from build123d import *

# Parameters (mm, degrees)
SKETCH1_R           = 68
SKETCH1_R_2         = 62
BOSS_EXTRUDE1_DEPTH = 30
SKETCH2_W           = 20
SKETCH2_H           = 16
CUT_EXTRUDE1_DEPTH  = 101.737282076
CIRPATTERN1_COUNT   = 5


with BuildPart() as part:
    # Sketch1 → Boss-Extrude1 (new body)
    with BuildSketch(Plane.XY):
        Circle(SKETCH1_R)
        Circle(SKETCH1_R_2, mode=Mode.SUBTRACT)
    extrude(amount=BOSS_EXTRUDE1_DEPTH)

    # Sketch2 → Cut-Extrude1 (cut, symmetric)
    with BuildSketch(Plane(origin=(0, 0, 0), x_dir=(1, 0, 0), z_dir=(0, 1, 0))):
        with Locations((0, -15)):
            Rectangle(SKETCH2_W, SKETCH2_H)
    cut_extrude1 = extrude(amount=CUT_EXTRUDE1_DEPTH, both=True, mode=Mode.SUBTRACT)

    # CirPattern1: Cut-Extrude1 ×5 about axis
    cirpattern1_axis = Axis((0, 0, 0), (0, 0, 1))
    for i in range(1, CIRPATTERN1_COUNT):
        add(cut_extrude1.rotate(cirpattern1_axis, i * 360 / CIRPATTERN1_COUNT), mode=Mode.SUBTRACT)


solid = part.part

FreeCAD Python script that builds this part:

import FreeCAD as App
import Part
import Sketcher

V = App.Vector
Q = App.Units.Quantity

doc = App.newDocument("Part")
body = doc.addObject("PartDesign::Body", "Body")

sketch1 = body.newObject("Sketcher::SketchObject", "Sketch")
sketch1.AttachmentSupport = (doc.getObject("XY_Plane"), [""])
sketch1.MapMode = "FlatFace"
sketch1.addGeometry(Part.Circle(V(0, 0, 0), V(0, 0, 1), 68), False)
sketch1.addGeometry(Part.Circle(V(0, 0, 0), V(0, 0, 1), 62), False)
sketch1.addConstraint(Sketcher.Constraint("Coincident", 0, 3, -1, 1))
sketch1.addConstraint(Sketcher.Constraint("Coincident", 1, 3, -1, 1))
sketch1.addConstraint(Sketcher.Constraint("Diameter", 0, Q("136 mm")))
sketch1.addConstraint(Sketcher.Constraint("Diameter", 1, Q("124 mm")))
pad1 = body.newObject("PartDesign::Pad", "Pad")
pad1.Profile = sketch1
pad1.Length = 30

sketch2 = body.newObject("Sketcher::SketchObject", "Sketch001")
sketch2.AttachmentSupport = (doc.getObject("XZ_Plane"), [""])
sketch2.MapMode = "FlatFace"
sketch2.addGeometry(Part.LineSegment(V(-10, 7, 0), V(-10, 23, 0)), False)
sketch2.addGeometry(Part.LineSegment(V(-10, 23, 0), V(10, 23, 0)), False)
sketch2.addGeometry(Part.LineSegment(V(10, 23, 0), V(10, 7, 0)), False)
sketch2.addGeometry(Part.LineSegment(V(10, 7, 0), V(-10, 7, 0)), False)
sketch2.addConstraint(Sketcher.Constraint("Coincident", 0, 2, 1, 1))
sketch2.addConstraint(Sketcher.Constraint("Coincident", 1, 2, 2, 1))
sketch2.addConstraint(Sketcher.Constraint("Coincident", 2, 2, 3, 1))
sketch2.addConstraint(Sketcher.Constraint("Coincident", 3, 2, 0, 1))
sketch2.addConstraint(Sketcher.Constraint("Vertical", 0))
sketch2.addConstraint(Sketcher.Constraint("Horizontal", 1))
sketch2.addConstraint(Sketcher.Constraint("Vertical", 2))
sketch2.addConstraint(Sketcher.Constraint("Horizontal", 3))
sketch2.addConstraint(Sketcher.Constraint("DistanceX", 1, 1, 1, 2, Q("20 mm")))
sketch2.addConstraint(Sketcher.Constraint("DistanceY", 0, 1, 0, 2, Q("16 mm")))
sketch2.addConstraint(Sketcher.Constraint("DistanceX", 0, 2, -1, 1, Q("10 mm")))
sketch2.addConstraint(Sketcher.Constraint("DistanceY", -1, 1, 0, 2, Q("23 mm")))
pocket1 = body.newObject("PartDesign::Pocket", "Pocket")
pocket1.Profile = sketch2
pocket1.Length = 203.474564
pocket1.Midplane = True
doc.recompute()

polarpattern = body.newObject("PartDesign::PolarPattern", "PolarPattern")
polarpattern.Originals = [pocket1]
polarpattern.Axis = (doc.getObject("Z_Axis"), [""])
polarpattern.Angle = 360
polarpattern.Occurrences = 5
body.Tip = polarpattern

doc.recompute()
